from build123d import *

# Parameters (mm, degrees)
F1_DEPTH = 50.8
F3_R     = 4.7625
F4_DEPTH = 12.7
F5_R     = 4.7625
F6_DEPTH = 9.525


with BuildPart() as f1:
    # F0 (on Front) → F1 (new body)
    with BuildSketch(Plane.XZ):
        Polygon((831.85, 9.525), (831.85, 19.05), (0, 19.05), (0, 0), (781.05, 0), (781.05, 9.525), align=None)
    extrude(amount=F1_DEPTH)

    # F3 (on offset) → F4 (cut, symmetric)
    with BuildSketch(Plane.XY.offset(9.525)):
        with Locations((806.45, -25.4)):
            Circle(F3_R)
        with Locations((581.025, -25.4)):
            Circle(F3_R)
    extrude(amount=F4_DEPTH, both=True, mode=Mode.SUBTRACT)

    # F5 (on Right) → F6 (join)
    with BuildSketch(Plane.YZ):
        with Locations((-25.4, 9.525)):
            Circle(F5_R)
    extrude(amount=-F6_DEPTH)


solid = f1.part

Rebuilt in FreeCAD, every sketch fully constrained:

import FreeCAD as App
import Part
import Sketcher
Q = App.Units.Quantity

doc = App.newDocument("Part")
params = doc.addObject("Spreadsheet::Sheet", "Params")
for row, (alias, value) in enumerate([
    ("sketch1_width", "2 in"),
    ("sketch1_width2", "32.75 in"),
    ("sketch1_height", "0.75 in"),
    ("pad1_length", "2 in"),
    ("sketch2_diameter", "0.375 in"),
    ("pocket1_length", "1 in"),
    ("sketch3_diameter", "0.375 in"),
    ("pad2_length", "0.375 in"),
], start=1):
    params.set(f"A{row}", alias)
    params.set(f"B{row}", "=" + value)
    params.setAlias(f"B{row}", alias)

body = doc.addObject("PartDesign::Body", "Body")

# Sketch on XZ plane
sketch1 = body.newObject("Sketcher::SketchObject", "Sketch")
sketch1.AttachmentSupport = (doc.getObject("XZ_Plane"), [""])
sketch1.MapMode = "FlatFace"
sketch1.addGeometry(Part.LineSegment(App.Vector(832, 10, 0), App.Vector(832, 19, 0)), False)
sketch1.addGeometry(Part.LineSegment(App.Vector(832, 19, 0), App.Vector(0, 19, 0)), False)
sketch1.addGeometry(Part.LineSegment(App.Vector(0, 19, 0), App.Vector(0, 0, 0)), False)
sketch1.addGeometry(Part.LineSegment(App.Vector(0, 0, 0), App.Vector(781, 0, 0)), False)
sketch1.addGeometry(Part.LineSegment(App.Vector(781, 0, 0), App.Vector(781, 10, 0)), False)
sketch1.addGeometry(Part.LineSegment(App.Vector(781, 10, 0), App.Vector(832, 10, 0)), False)
sketch1.addConstraint(Sketcher.Constraint("Coincident", 0, 2, 1, 1))
sketch1.addConstraint(Sketcher.Constraint("Coincident", 1, 2, 2, 1))
sketch1.addConstraint(Sketcher.Constraint("Coincident", 2, 2, 3, 1))
sketch1.addConstraint(Sketcher.Constraint("Coincident", 3, 2, 4, 1))
sketch1.addConstraint(Sketcher.Constraint("Coincident", 4, 2, 5, 1))
sketch1.addConstraint(Sketcher.Constraint("Coincident", 5, 2, 0, 1))
sketch1.addConstraint(Sketcher.Constraint("Vertical", 0))
sketch1.addConstraint(Sketcher.Constraint("Horizontal", 1))
sketch1.addConstraint(Sketcher.Constraint("Vertical", 2))
sketch1.addConstraint(Sketcher.Constraint("Horizontal", 3))
sketch1.addConstraint(Sketcher.Constraint("Vertical", 4))
sketch1.addConstraint(Sketcher.Constraint("Horizontal", 5))
sketch1.addConstraint(Sketcher.Constraint("Coincident", 2, 2, -1, 1))
sketch1.addConstraint(Sketcher.Constraint("Equal", 0, 4))
sketch1.addConstraint(Sketcher.Constraint("DistanceX", 5, 1, 5, 2, Q("2 in")))
sketch1.addConstraint(Sketcher.Constraint("DistanceX", 1, 2, 1, 1, Q("32.75 in")))
sketch1.addConstraint(Sketcher.Constraint("DistanceY", 2, 2, 2, 1, Q("0.75 in")))
sketch1.setExpression("Constraints[14]", "Params.sketch1_width")
sketch1.setExpression("Constraints[15]", "Params.sketch1_width2")
sketch1.setExpression("Constraints[16]", "Params.sketch1_height")
pad1 = body.newObject("PartDesign::Pad", "Pad")
pad1.Profile = sketch1
pad1.setExpression("Length", "Params.pad1_length")

# Sketch on XY plane
sketch2 = body.newObject("Sketcher::SketchObject", "Sketch001")
sketch2.AttachmentSupport = (doc.getObject("XY_Plane"), [""])
sketch2.MapMode = "FlatFace"
sketch2.AttachmentOffset = App.Placement(App.Vector(0, 0, 0.375 * 25.4), App.Rotation())
sketch2.addGeometry(Part.Circle(App.Vector(806.5, -25.4, 0), App.Vector(0, 0, 1), 4.8), False)
sketch2.addGeometry(Part.Circle(App.Vector(581, -25.4, 0), App.Vector(0, 0, 1), 4.8), False)
sketch2.addConstraint(Sketcher.Constraint("Equal", 0, 1))
sketch2.addConstraint(Sketcher.Constraint("Horizontal", 0, 3, 1, 3))
sketch2.addConstraint(Sketcher.Constraint("Diameter", 0, Q("0.375 in")))
sketch2.addConstraint(Sketcher.Constraint("DistanceY", 0, 3, -1, 1, Q("1 in")))
sketch2.addConstraint(Sketcher.Constraint("DistanceX", -1, 1, 0, 3, Q("31.75 in")))
sketch2.addConstraint(Sketcher.Constraint("DistanceX", -1, 1, 1, 3, Q("22.875 in")))
sketch2.setExpression("Constraints[2]", "Params.sketch2_diameter")
pocket1 = body.newObject("PartDesign::Pocket", "Pocket")
pocket1.Profile = sketch2
pocket1.setExpression("Length", "Params.pocket1_length")
pocket1.Midplane = True

# Sketch on YZ plane
sketch3 = body.newObject("Sketcher::SketchObject", "Sketch002")
sketch3.AttachmentSupport = (doc.getObject("YZ_Plane"), [""])
sketch3.MapMode = "FlatFace"
sketch3.addGeometry(Part.Circle(App.Vector(-25.4, 9.5, 0), App.Vector(0, 0, 1), 4.8), False)
sketch3.addConstraint(Sketcher.Constraint("Diameter", 0, Q("0.375 in")))
sketch3.addConstraint(Sketcher.Constraint("DistanceX", 0, 3, -1, 1, Q("1 in")))
sketch3.addConstraint(Sketcher.Constraint("DistanceY", -1, 1, 0, 3, Q("0.375 in")))
sketch3.setExpression("Constraints[0]", "Params.sketch3_diameter")
pad2 = body.newObject("PartDesign::Pad", "Pad001")
pad2.Profile = sketch3
pad2.setExpression("Length", "Params.pad2_length")
pad2.Reversed = True

doc.recompute()
